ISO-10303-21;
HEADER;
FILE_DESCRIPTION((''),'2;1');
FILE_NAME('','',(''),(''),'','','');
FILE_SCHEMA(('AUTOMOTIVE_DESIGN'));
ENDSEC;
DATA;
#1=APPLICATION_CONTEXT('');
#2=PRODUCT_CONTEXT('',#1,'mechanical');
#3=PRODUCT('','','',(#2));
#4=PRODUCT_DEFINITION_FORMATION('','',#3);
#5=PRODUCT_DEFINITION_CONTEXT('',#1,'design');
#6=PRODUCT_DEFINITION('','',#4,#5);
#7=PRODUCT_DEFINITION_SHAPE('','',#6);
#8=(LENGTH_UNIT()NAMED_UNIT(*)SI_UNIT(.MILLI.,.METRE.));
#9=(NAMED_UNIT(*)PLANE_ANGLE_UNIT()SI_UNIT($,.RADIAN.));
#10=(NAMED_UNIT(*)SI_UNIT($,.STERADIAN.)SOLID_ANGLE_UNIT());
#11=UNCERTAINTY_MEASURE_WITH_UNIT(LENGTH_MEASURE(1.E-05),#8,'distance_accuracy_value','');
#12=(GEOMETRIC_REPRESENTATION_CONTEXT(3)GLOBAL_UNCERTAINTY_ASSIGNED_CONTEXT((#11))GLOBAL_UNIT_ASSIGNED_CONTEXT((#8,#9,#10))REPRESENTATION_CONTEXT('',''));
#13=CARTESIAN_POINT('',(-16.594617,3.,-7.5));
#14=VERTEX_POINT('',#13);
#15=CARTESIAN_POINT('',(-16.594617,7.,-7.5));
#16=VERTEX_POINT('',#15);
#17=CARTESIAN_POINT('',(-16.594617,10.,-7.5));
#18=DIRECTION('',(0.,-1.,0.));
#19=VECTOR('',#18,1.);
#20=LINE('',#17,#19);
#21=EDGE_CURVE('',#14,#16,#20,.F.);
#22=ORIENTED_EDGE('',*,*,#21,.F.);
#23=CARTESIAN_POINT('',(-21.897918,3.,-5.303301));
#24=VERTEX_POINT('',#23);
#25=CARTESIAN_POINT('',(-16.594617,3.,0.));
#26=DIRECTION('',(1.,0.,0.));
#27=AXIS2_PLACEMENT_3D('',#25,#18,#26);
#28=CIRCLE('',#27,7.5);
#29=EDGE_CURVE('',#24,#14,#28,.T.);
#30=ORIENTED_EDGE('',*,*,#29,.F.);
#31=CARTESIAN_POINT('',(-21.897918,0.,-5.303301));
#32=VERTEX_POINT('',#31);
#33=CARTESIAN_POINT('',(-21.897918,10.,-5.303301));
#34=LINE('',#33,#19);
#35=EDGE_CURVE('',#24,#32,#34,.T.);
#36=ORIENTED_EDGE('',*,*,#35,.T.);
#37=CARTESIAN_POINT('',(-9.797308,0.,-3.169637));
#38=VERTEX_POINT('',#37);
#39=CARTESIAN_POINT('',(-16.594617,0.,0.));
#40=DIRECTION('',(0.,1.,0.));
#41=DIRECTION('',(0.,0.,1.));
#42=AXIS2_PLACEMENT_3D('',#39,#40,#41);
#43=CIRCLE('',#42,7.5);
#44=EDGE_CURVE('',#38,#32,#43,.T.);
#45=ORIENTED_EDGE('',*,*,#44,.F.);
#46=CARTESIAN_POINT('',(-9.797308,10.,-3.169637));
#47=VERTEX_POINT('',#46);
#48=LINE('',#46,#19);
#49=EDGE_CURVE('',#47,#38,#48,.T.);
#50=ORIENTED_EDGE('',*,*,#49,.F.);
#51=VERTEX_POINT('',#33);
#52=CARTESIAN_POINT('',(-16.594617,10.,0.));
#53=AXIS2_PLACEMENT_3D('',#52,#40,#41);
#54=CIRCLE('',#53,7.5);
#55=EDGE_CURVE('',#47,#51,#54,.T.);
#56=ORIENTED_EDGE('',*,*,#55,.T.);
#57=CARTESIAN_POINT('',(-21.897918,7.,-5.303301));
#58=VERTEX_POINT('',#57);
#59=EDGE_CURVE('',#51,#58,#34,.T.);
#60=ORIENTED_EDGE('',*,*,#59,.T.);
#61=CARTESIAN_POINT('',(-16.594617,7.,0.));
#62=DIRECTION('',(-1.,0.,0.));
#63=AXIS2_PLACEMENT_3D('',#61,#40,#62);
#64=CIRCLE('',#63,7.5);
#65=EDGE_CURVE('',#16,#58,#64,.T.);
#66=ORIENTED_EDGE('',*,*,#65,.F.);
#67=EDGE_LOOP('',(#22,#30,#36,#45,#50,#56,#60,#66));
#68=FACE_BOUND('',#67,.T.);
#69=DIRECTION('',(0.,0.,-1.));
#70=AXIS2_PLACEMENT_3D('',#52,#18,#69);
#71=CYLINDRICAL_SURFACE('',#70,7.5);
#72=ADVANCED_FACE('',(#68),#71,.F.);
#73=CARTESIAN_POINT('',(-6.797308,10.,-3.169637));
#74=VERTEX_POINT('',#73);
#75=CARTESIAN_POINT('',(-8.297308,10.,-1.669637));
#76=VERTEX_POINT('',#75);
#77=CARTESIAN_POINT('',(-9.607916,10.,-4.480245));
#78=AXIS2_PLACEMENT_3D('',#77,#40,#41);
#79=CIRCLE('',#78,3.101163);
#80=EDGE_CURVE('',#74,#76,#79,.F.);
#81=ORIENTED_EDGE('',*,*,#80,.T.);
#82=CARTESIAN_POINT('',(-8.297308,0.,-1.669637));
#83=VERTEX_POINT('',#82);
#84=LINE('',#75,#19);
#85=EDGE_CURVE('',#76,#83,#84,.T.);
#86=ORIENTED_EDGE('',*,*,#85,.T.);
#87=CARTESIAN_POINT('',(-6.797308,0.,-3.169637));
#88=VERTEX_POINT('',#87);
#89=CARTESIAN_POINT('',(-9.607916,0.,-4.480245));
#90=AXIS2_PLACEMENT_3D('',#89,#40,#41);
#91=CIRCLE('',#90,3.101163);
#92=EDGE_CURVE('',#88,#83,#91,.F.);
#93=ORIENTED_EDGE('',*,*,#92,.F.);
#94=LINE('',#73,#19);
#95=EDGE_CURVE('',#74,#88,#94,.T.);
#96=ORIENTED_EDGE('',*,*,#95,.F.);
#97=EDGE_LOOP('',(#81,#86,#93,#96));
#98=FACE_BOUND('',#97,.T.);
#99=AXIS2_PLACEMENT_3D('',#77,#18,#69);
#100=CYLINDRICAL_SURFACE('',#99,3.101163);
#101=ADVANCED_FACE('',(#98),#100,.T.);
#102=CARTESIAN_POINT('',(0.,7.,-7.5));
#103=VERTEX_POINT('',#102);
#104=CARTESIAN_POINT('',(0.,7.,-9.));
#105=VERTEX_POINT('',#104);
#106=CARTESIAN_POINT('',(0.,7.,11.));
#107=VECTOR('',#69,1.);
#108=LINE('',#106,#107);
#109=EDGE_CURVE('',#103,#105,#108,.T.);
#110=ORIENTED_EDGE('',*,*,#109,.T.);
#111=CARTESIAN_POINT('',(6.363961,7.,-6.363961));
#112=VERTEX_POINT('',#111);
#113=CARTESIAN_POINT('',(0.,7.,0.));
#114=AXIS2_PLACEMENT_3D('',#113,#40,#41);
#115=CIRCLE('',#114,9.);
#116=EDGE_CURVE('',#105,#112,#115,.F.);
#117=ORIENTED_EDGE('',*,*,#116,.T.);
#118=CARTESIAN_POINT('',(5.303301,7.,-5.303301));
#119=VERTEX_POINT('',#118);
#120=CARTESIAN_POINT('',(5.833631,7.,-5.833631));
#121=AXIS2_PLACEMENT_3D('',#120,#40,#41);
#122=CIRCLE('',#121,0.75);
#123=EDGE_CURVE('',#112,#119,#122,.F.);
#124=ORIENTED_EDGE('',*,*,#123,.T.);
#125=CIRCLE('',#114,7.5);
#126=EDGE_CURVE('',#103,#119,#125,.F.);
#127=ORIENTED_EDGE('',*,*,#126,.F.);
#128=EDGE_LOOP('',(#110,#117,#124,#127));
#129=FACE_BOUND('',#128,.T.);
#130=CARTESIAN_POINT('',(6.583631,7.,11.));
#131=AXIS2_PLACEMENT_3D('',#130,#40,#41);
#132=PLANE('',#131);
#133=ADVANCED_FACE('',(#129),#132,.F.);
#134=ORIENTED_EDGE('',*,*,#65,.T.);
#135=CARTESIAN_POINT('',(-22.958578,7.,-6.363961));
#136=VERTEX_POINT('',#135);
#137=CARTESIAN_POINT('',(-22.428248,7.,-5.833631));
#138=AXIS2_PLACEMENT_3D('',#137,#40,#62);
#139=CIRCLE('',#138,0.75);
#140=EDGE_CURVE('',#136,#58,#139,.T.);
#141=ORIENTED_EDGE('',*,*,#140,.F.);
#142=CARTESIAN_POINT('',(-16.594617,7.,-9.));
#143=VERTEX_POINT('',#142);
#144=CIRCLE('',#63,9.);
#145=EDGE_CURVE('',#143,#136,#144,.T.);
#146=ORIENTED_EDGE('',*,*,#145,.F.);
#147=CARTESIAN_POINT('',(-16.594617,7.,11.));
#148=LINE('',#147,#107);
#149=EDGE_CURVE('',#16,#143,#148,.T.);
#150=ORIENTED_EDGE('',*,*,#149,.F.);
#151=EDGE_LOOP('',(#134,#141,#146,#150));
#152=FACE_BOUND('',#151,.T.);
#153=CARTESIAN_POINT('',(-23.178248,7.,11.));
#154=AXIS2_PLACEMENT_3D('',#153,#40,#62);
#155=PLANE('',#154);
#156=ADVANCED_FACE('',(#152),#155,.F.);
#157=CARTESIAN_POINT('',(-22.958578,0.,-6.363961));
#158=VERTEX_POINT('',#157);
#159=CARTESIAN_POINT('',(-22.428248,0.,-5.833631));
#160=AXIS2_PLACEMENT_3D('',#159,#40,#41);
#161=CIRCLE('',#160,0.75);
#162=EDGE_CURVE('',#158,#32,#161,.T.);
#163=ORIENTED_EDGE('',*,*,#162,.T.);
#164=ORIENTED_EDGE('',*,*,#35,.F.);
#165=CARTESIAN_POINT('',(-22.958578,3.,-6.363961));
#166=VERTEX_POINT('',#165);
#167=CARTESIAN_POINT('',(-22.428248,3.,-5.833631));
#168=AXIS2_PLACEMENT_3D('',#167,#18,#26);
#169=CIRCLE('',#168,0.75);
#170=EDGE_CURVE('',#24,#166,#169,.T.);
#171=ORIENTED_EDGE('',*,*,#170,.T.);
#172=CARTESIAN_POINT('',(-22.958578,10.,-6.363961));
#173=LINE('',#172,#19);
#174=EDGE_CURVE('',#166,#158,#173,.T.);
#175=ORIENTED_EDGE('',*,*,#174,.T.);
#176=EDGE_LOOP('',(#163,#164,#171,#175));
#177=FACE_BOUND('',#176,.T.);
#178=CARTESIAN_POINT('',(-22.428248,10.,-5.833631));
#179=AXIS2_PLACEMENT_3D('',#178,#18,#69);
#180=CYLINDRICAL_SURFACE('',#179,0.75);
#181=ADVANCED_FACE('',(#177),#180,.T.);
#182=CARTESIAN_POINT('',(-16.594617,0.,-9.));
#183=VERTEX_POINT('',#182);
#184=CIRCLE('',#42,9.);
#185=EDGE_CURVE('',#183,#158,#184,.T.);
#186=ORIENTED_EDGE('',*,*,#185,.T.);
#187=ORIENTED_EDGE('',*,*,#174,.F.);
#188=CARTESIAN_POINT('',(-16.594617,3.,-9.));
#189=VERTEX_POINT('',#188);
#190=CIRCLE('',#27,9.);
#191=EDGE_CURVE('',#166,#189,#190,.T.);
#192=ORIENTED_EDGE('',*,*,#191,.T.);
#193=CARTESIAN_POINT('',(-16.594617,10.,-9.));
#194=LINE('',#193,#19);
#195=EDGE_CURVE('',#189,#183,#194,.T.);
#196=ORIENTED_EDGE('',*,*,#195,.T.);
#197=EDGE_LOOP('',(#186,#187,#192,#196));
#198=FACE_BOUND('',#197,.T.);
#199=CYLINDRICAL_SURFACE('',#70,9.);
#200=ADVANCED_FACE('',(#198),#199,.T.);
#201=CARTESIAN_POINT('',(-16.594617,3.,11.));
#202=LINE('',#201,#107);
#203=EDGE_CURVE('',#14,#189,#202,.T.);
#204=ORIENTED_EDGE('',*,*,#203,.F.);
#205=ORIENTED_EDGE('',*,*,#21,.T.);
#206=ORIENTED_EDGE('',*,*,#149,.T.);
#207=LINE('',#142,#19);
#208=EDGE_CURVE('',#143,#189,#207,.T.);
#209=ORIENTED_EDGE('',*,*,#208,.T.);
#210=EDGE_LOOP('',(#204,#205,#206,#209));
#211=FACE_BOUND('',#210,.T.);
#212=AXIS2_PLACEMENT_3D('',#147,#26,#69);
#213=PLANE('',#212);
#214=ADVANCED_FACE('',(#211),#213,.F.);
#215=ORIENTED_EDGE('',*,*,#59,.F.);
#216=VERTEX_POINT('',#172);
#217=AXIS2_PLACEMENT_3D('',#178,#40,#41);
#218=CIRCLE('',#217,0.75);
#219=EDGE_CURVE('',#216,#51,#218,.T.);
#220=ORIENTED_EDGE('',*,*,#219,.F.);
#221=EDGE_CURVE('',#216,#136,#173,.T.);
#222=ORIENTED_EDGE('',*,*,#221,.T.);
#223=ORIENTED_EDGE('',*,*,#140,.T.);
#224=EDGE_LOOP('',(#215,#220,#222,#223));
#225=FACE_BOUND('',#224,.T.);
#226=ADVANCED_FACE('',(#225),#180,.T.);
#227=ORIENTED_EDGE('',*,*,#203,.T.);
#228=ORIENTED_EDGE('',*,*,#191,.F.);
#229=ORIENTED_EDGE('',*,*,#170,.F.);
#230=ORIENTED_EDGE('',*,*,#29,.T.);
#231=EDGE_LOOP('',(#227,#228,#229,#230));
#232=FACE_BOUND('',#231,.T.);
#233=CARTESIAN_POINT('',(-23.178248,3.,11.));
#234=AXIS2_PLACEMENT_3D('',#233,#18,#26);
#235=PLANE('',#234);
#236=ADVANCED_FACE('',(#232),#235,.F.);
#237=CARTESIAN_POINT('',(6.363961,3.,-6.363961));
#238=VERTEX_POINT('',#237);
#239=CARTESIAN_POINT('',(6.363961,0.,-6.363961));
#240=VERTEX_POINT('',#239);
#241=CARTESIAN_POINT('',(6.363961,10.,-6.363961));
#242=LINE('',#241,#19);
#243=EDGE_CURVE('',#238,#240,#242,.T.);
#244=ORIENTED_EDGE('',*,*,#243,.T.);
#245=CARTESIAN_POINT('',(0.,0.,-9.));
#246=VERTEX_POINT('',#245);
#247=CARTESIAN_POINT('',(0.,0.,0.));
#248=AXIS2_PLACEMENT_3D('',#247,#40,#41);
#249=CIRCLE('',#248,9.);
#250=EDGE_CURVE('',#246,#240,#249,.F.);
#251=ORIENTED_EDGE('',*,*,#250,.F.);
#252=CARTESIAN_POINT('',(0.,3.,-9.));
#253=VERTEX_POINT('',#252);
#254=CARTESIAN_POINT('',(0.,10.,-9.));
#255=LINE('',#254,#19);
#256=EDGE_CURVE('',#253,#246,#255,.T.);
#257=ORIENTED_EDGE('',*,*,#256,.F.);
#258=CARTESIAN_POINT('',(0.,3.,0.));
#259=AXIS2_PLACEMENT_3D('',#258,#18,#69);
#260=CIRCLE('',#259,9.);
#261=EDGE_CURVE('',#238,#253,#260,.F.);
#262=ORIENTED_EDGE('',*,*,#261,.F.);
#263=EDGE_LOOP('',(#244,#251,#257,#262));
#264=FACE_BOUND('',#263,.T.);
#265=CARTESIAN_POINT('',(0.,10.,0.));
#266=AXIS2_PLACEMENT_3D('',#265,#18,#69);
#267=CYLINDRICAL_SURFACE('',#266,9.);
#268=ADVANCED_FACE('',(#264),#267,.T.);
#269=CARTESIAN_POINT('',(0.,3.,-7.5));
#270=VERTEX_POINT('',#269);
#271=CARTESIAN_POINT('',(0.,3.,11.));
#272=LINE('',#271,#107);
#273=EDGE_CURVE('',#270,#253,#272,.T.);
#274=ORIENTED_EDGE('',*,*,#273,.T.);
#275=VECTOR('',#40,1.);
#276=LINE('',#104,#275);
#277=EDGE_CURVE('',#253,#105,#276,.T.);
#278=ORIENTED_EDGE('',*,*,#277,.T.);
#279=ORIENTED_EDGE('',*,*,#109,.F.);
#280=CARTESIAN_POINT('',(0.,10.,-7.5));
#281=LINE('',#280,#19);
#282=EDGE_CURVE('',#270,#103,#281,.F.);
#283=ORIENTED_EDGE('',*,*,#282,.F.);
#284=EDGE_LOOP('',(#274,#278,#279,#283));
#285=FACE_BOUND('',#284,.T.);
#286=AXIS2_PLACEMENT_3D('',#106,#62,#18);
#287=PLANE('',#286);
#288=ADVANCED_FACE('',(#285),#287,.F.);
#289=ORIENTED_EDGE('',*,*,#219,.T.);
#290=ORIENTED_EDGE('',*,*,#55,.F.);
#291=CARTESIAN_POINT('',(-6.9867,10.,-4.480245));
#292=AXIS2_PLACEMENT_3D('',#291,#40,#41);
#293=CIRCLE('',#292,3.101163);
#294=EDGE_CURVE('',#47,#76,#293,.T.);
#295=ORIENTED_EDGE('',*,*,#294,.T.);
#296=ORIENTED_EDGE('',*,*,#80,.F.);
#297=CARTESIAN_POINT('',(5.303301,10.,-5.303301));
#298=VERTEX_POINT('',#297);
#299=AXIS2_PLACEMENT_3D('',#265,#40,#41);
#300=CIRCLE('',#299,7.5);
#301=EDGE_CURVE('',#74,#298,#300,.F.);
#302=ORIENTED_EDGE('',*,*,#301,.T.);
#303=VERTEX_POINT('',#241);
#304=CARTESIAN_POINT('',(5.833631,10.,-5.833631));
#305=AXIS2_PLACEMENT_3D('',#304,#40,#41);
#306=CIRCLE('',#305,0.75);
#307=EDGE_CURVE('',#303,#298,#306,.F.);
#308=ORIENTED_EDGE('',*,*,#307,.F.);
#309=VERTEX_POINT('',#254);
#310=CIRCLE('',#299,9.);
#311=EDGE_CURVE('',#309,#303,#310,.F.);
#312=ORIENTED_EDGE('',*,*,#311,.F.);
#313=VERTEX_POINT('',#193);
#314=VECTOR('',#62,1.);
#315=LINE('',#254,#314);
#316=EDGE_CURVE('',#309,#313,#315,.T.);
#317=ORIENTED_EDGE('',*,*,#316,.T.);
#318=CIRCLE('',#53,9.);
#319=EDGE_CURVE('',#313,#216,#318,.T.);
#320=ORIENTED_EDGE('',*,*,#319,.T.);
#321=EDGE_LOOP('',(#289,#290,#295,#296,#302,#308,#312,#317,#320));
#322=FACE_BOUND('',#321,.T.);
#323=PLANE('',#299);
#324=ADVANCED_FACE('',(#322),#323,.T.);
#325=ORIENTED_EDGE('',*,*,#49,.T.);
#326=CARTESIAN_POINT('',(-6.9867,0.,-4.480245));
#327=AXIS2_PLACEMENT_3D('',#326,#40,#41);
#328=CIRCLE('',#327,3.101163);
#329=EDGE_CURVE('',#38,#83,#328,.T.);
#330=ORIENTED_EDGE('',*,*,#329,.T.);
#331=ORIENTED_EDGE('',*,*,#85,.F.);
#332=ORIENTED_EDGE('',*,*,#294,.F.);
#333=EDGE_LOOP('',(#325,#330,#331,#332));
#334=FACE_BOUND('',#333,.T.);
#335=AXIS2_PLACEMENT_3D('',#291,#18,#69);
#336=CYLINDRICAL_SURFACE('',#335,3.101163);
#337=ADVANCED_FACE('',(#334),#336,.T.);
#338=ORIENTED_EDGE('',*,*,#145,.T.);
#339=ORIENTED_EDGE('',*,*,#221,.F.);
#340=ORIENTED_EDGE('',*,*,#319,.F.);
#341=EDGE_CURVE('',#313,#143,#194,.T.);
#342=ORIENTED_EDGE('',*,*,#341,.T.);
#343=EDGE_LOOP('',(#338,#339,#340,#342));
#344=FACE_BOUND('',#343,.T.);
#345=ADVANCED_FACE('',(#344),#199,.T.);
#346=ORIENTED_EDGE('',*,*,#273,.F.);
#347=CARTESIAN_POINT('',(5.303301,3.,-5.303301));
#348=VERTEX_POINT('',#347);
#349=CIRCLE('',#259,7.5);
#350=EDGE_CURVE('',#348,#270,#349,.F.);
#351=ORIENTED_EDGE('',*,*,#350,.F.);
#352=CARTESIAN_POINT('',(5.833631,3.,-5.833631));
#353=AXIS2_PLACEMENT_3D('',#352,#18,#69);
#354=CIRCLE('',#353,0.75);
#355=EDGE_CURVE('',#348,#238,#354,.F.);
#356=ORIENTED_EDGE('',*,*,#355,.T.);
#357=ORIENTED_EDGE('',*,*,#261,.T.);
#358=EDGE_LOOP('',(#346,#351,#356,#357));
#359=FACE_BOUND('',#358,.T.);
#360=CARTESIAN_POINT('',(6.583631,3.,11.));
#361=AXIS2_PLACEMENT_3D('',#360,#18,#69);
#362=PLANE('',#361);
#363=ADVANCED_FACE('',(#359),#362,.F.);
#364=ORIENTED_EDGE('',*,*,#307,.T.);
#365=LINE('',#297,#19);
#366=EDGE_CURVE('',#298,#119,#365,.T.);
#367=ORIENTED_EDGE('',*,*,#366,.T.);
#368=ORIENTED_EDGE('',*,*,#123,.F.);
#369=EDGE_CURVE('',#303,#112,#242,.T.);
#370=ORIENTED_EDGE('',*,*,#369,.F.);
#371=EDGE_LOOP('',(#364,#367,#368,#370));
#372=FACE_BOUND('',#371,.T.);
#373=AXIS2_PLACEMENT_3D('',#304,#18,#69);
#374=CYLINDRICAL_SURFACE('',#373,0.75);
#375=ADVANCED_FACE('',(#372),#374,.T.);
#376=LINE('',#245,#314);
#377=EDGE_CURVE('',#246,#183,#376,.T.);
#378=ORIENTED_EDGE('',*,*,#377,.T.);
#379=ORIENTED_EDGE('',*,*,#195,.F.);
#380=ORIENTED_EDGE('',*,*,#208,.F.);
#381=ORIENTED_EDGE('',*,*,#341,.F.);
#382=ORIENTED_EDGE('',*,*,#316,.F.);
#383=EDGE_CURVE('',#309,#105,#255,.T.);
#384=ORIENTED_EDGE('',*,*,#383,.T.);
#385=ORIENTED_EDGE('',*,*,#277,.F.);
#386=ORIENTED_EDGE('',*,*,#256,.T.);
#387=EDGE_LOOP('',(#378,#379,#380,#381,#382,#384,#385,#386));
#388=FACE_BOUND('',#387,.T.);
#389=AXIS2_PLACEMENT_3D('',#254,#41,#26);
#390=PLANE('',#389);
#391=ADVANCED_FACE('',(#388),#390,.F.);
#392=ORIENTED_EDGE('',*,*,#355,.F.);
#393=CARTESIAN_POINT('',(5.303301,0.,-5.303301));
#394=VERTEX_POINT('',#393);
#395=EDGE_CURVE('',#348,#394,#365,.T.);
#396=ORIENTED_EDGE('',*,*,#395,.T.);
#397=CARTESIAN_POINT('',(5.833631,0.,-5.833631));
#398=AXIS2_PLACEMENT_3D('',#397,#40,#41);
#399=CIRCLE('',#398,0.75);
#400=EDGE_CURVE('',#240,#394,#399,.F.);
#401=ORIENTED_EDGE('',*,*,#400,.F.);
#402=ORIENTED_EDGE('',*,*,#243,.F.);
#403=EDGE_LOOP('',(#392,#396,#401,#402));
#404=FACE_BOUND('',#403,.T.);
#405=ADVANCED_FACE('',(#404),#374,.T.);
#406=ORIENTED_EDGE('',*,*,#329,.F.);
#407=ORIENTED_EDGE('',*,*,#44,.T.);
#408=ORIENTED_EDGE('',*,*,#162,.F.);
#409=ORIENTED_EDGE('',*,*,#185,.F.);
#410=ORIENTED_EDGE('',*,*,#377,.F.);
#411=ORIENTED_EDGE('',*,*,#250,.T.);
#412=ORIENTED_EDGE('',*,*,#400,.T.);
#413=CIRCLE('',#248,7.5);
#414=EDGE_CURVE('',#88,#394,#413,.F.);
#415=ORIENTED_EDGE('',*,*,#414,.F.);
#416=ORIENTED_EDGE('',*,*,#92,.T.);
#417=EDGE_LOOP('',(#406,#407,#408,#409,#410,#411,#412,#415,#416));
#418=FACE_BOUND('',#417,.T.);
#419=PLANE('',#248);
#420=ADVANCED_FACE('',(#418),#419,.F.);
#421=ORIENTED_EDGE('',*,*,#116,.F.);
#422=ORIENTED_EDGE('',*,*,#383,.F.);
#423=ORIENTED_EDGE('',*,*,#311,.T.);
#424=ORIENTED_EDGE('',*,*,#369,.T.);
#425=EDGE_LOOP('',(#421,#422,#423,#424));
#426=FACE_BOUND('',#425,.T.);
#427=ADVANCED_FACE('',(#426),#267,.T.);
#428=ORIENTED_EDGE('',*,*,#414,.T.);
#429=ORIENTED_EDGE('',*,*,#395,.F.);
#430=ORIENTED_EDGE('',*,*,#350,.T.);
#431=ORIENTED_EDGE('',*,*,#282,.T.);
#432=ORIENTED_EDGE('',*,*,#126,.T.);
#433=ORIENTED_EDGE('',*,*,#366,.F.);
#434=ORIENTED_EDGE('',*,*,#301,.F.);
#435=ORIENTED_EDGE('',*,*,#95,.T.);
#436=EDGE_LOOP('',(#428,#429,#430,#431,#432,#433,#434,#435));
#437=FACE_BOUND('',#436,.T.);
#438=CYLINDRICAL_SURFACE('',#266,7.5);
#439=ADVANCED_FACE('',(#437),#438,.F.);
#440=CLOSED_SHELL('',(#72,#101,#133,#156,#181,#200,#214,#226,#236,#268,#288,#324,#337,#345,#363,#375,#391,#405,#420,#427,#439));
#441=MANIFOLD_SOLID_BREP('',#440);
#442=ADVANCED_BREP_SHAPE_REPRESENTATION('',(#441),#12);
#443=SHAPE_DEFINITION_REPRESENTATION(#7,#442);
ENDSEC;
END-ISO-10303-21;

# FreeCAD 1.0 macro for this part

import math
import FreeCAD as App
import Part
import Sketcher
Q = App.Units.Quantity


def add_polygon(sketch, points):
    """Adds a closed chain of lines whose ends are joined by coincident constraints."""
    first, n = sketch.GeometryCount, len(points)
    for a, b in zip(points, points[1:] + points[:1]):
        sketch.addGeometry(Part.LineSegment(App.Vector(*a, 0), App.Vector(*b, 0)), False)
    for i in range(n):
        sketch.addConstraint(Sketcher.Constraint("Coincident", first + i, 2, first + (i + 1) % n, 1))

doc = App.newDocument("Part")
params = doc.addObject("Spreadsheet::Sheet", "Params")
for row, (alias, value) in enumerate([
    ("sketch1_radius", "9 mm"),
    ("sketch1_radius2", "7.5 mm"),
    ("pad1_length", "10 mm"),
    ("sketch2_height", "4 mm"),
    ("pocket1_length", "20 mm"),
], start=1):
    params.set(f"A{row}", alias)
    params.set(f"B{row}", "=" + value)
    params.setAlias(f"B{row}", alias)

body = doc.addObject("PartDesign::Body", "Body")

sketch1 = body.newObject("Sketcher::SketchObject", "Sketch")
sketch1.AttachmentSupport = (doc.getObject("XZ_Plane"), [""])
sketch1.MapMode = "FlatFace"
sketch1.addGeometry([
    Part.ArcOfCircle(Part.Circle(App.Vector(-16.6, 0, 0), App.Vector(0, 0, 1), 7.5), math.radians(-135), math.radians(-25)),
    Part.ArcOfCircle(Part.Circle(App.Vector(-7, -4.5, 0), App.Vector(0, 0, 1), 3.1), math.radians(115), math.radians(155)),
    Part.ArcOfCircle(Part.Circle(App.Vector(-9.6, -4.5, 0), App.Vector(0, 0, 1), 3.1), math.radians(25), math.radians(65)),
    Part.ArcOfCircle(Part.Circle(App.Vector(0, 0, 0), App.Vector(0, 0, 1), 7.5), math.radians(-155), math.radians(-45)),
    Part.ArcOfCircle(Part.Circle(App.Vector(5.8, -5.8, 0), App.Vector(0, 0, 1), 0.8), math.radians(-45), math.radians(135)),
    Part.ArcOfCircle(Part.Circle(App.Vector(0, 0, 0), App.Vector(0, 0, 1), 9), math.radians(-90), math.radians(-45)),
    Part.LineSegment(App.Vector(0, -9, 0), App.Vector(-16.6, -9, 0)),
    Part.ArcOfCircle(Part.Circle(App.Vector(-16.6, 0, 0), App.Vector(0, 0, 1), 9), math.radians(-135), math.radians(-90)),
    Part.ArcOfCircle(Part.Circle(App.Vector(-22.4, -5.8, 0), App.Vector(0, 0, 1), 0.8), math.radians(45), math.radians(225)),
], False)
sketch1.addConstraint([
    Sketcher.Constraint("Tangent", 0, 2, 1, 2),
    Sketcher.Constraint("Coincident", 1, 1, 2, 2),
    Sketcher.Constraint("Tangent", 2, 1, 3, 1),
    Sketcher.Constraint("Tangent", 3, 2, 4, 2),
    Sketcher.Constraint("Tangent", 4, 1, 5, 2),
    Sketcher.Constraint("Tangent", 5, 1, 6, 1),
    Sketcher.Constraint("Tangent", 6, 2, 7, 2),
    Sketcher.Constraint("Tangent", 7, 1, 8, 2),
    Sketcher.Constraint("Tangent", 8, 1, 0, 1),
    Sketcher.Constraint("Horizontal", 6),
    Sketcher.Constraint("Coincident", 3, 3, -1, 1),
    Sketcher.Constraint("Coincident", 5, 3, -1, 1),
    Sketcher.Constraint("Coincident", 7, 3, 0, 3),
    Sketcher.Constraint("Equal", 1, 2),
    Sketcher.Constraint("Equal", 0, 3),
    Sketcher.Constraint("Equal", 5, 7),
    Sketcher.Constraint("Horizontal", 1, 3, 2, 3),
    Sketcher.Constraint("Horizontal", 4, 3, 8, 3),
    Sketcher.Constraint("Radius", 5, Q("9 mm")),
    Sketcher.Constraint("Radius", 0, Q("7.5 mm")),
    Sketcher.Constraint("DistanceX", 0, 2, 2, 1, Q("3 mm")),
    Sketcher.Constraint("DistanceY", 0, 2, 1, 1, Q("1.5 mm")),
    Sketcher.Constraint("DistanceX", 1, 3, 3, 2, Q("12.290001 mm")),
    Sketcher.Constraint("Radius", 1, Q("3.101163 mm")),
])
sketch1.setExpression("Constraints[18]", "Params.sketch1_radius")
sketch1.setExpression("Constraints[19]", "Params.sketch1_radius2")
pad1 = body.newObject("PartDesign::Pad", "Pad")
pad1.Profile = sketch1
pad1.setExpression("Length", "Params.pad1_length")
pad1.Reversed = True

sketch2 = body.newObject("Sketcher::SketchObject", "Sketch001")
sketch2.AttachmentSupport = (doc.getObject("XY_Plane"), [""])
sketch2.MapMode = "FlatFace"
sketch2.AttachmentOffset = App.Placement(App.Vector(0, 0, -9), App.Rotation())
add_polygon(sketch2, [(6.6, 7), (6.6, 3), (0, 3), (0, 7)])
add_polygon(sketch2, [(-16.6, 7), (-16.6, 3), (-23.2, 3), (-23.2, 7)])
sketch2.addConstraint([
    Sketcher.Constraint("Vertical", 0),
    Sketcher.Constraint("Horizontal", 1),
    Sketcher.Constraint("Vertical", 2),
    Sketcher.Constraint("Horizontal", 3),
    Sketcher.Constraint("Vertical", 4),
    Sketcher.Constraint("Horizontal", 5),
    Sketcher.Constraint("Vertical", 6),
    Sketcher.Constraint("Horizontal", 7),
    Sketcher.Constraint("PointOnObject", 1, 2, -2),
    Sketcher.Constraint("Horizontal", 1, 2, 4, 2),
    Sketcher.Constraint("Horizontal", 3, 2, 6, 2),
    Sketcher.Constraint("Equal", 3, 5),
    Sketcher.Constraint("DistanceY", 0, 2, 0, 1, Q("4 mm")),
    Sketcher.Constraint("DistanceY", -1, 1, 0, 2, Q("3 mm")),
    Sketcher.Constraint("DistanceX", 1, 2, 1, 1, Q("6.583631 mm")),
    Sketcher.Constraint("DistanceX", 5, 2, 0, 2, Q("29.761879 mm")),
])
sketch2.setExpression("Constraints[20]", "Params.sketch2_height")
pocket1 = body.newObject("PartDesign::Pocket", "Pocket")
pocket1.Profile = sketch2
pocket1.setExpression("Length", "Params.pocket1_length")
pocket1.Reversed = True

doc.recompute()
